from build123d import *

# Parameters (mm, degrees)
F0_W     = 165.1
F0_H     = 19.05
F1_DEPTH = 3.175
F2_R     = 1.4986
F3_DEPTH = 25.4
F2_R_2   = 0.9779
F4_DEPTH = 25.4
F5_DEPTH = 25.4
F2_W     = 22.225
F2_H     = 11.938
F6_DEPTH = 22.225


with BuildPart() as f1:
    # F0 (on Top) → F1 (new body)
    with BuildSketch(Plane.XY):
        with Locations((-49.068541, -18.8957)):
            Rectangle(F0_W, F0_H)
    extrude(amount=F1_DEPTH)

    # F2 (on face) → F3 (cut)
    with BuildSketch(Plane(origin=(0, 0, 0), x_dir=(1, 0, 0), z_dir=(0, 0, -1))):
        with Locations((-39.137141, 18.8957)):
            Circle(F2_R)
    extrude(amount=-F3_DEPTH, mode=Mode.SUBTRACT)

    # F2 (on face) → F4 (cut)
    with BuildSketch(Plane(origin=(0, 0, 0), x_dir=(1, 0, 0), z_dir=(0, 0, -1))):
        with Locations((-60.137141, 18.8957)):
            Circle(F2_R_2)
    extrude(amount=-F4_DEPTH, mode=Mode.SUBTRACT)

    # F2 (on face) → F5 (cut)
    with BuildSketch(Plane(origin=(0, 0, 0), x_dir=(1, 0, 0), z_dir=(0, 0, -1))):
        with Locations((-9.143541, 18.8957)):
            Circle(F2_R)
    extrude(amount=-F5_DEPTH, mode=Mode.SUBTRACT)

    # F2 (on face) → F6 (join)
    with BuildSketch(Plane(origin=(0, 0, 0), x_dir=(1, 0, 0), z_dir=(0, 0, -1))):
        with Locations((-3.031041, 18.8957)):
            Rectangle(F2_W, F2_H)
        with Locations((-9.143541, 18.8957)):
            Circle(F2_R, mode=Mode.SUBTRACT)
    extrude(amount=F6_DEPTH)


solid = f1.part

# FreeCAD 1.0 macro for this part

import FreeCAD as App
import Part
import Sketcher
from FreeCAD import Vector
Q = App.Units.Quantity


def add_polygon(sketch, points):
    """Adds a closed chain of lines whose ends are joined by coincident constraints."""
    first, n = sketch.GeometryCount, len(points)
    for a, b in zip(points, points[1:] + points[:1]):
        sketch.addGeometry(Part.LineSegment(App.Vector(*a, 0), App.Vector(*b, 0)), False)
    for i in range(n):
        sketch.addConstraint(Sketcher.Constraint("Coincident", first + i, 2, first + (i + 1) % n, 1))

doc = App.newDocument("Part")
body = doc.addObject("PartDesign::Body", "Body")

# Sketch on XY plane
sketch1 = body.newObject("Sketcher::SketchObject", "Sketch")
sketch1.AttachmentSupport = (doc.getObject("XY_Plane"), [""])
sketch1.MapMode = "FlatFace"
add_polygon(sketch1, [(-132, -9), (-132, -28), (33, -28), (33, -9)])  # lines 0-3
sketch1.addConstraint([
    Sketcher.Constraint("Vertical", 0),
    Sketcher.Constraint("Horizontal", 1),
    Sketcher.Constraint("Vertical", 2),
    Sketcher.Constraint("Horizontal", 3),
    Sketcher.Constraint("DistanceX", 1, 1, 1, 2, Q("6.5 in")),
    Sketcher.Constraint("DistanceY", 0, 2, 0, 1, Q("0.75 in")),
    Sketcher.Constraint("DistanceY", 0, 2, -1, 1, Q("28.4207 mm")),
    Sketcher.Constraint("DistanceX", 0, 2, -1, 1, Q("131.618541 mm")),
])
pad1 = body.newObject("PartDesign::Pad", "Pad")
pad1.Profile = sketch1
pad1.Length = Q("0.125 in")

# Sketch on XY plane
sketch2 = body.newObject("Sketcher::SketchObject", "Sketch001")
sketch2.AttachmentSupport = (doc.getObject("XY_Plane"), [""])
sketch2.MapMode = "FlatFace"
sketch2.addGeometry(Part.Circle(Vector(-39.1, -18.9, 0), Vector(0, 0, 1), 1.5), False)
sketch2.addConstraint([
    Sketcher.Constraint("Diameter", 0, Q("0.118 in")),
    Sketcher.Constraint("DistanceY", 0, 3, -1, 1, Q("18.8957 mm")),
    Sketcher.Constraint("DistanceX", 0, 3, -1, 1, Q("39.137141 mm")),
])
pocket1 = body.newObject("PartDesign::Pocket", "Pocket")
pocket1.Profile = sketch2
pocket1.Length = Q("1 in")
pocket1.Reversed = True

# Sketch on XY plane
sketch3 = body.newObject("Sketcher::SketchObject", "Sketch002")
sketch3.AttachmentSupport = (doc.getObject("XY_Plane"), [""])
sketch3.MapMode = "FlatFace"
sketch3.addGeometry(Part.Circle(Vector(-60.1, -18.9, 0), Vector(0, 0, 1), 1), False)
sketch3.addConstraint([
    Sketcher.Constraint("Diameter", 0, Q("0.077 in")),
    Sketcher.Constraint("DistanceY", 0, 3, -1, 1, Q("18.8957 mm")),
    Sketcher.Constraint("DistanceX", 0, 3, -1, 1, Q("60.137141 mm")),
])
pocket2 = body.newObject("PartDesign::Pocket", "Pocket001")
pocket2.Profile = sketch3
pocket2.Length = Q("1 in")
pocket2.Reversed = True

# Sketch on XY plane
sketch4 = body.newObject("Sketcher::SketchObject", "Sketch003")
sketch4.AttachmentSupport = (doc.getObject("XY_Plane"), [""])
sketch4.MapMode = "FlatFace"
sketch4.addGeometry(Part.Circle(Vector(-9.1, -18.9, 0), Vector(0, 0, 1), 1.5), False)
sketch4.addConstraint([
    Sketcher.Constraint("Diameter", 0, Q("0.118 in")),
    Sketcher.Constraint("DistanceY", 0, 3, -1, 1, Q("18.8957 mm")),
    Sketcher.Constraint("DistanceX", 0, 3, -1, 1, Q("9.143541 mm")),
])
pocket3 = body.newObject("PartDesign::Pocket", "Pocket002")
pocket3.Profile = sketch4
pocket3.Length = Q("1 in")
pocket3.Reversed = True

# Sketch on XY plane
sketch5 = body.newObject("Sketcher::SketchObject", "Sketch004")
sketch5.AttachmentSupport = (doc.getObject("XY_Plane"), [""])
sketch5.MapMode = "FlatFace"
add_polygon(sketch5, [(-14.1, -24.9), (-14.1, -12.9), (8.1, -12.9), (8.1, -24.9)])  # lines 0-3
sketch5.addGeometry(Part.Circle(Vector(-9.1, -18.9, 0), Vector(0, 0, 1), 1.5), False)  # 4
sketch5.addConstraint([
    Sketcher.Constraint("Vertical", 0),
    Sketcher.Constraint("Horizontal", 1),
    Sketcher.Constraint("Vertical", 2),
    Sketcher.Constraint("Horizontal", 3),
    Sketcher.Constraint("Diameter", 4, Q("0.118 in")),
    Sketcher.Constraint("DistanceY", 0, 1, 0, 2, Q("0.47 in")),
    Sketcher.Constraint("DistanceX", 1, 1, 1, 2, Q("0.875 in")),
    Sketcher.Constraint("DistanceY", 4, 3, 0, 2, Q("0.235 in")),
    Sketcher.Constraint("DistanceY", 4, 3, -1, 1, Q("18.8957 mm")),
    Sketcher.Constraint("DistanceX", 0, 2, 4, 3, Q("5 mm")),
    Sketcher.Constraint("DistanceX", 4, 3, -1, 1, Q("9.143541 mm")),
])
pad2 = body.newObject("PartDesign::Pad", "Pad001")
pad2.Profile = sketch5
pad2.Length = Q("0.875 in")
pad2.Reversed = True

doc.recompute()
